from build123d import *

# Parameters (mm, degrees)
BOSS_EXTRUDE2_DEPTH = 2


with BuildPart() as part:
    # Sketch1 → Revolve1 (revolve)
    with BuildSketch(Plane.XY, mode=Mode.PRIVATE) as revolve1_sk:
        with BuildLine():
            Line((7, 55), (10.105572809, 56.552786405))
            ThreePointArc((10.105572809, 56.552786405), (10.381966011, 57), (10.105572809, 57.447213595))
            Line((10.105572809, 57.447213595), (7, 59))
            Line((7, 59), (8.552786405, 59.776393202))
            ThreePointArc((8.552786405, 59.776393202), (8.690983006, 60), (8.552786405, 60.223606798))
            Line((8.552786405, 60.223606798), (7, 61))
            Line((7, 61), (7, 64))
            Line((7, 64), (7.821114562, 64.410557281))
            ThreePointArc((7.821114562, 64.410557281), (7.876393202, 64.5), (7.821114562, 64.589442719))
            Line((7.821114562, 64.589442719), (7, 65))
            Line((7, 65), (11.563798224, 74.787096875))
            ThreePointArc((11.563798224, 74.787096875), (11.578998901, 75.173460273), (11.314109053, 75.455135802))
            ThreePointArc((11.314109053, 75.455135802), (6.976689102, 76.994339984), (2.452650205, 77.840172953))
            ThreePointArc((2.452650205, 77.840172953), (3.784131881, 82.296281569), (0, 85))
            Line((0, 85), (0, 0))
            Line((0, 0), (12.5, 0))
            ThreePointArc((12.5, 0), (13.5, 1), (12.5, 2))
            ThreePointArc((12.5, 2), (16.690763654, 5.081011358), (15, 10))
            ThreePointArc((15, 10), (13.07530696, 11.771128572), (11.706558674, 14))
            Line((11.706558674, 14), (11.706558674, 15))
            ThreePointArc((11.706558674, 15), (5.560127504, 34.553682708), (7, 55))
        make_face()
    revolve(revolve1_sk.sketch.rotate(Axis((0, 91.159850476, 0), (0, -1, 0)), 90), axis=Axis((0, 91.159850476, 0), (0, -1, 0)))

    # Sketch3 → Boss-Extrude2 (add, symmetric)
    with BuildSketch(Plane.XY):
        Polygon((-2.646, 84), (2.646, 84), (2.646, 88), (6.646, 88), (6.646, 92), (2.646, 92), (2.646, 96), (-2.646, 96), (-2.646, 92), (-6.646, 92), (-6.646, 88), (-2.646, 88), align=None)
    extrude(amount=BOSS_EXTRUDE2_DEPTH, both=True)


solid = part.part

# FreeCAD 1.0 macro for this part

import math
import FreeCAD as App
import Part
import Sketcher

V = App.Vector
Q = App.Units.Quantity


def add_polygon(sketch, points):
    """Adds a closed chain of lines whose ends are joined by coincident constraints."""
    first, n = sketch.GeometryCount, len(points)
    for a, b in zip(points, points[1:] + points[:1]):
        sketch.addGeometry(Part.LineSegment(App.Vector(*a, 0), App.Vector(*b, 0)), False)
    for i in range(n):
        sketch.addConstraint(Sketcher.Constraint("Coincident", first + i, 2, first + (i + 1) % n, 1))

doc = App.newDocument("Part")
params = doc.addObject("Spreadsheet::Sheet", "Params")
for row, (alias, value) in enumerate([
    ("sketch1_radius", "4 mm"),
    ("sketch1_radius2", "1 mm"),
    ("sketch1_radius3", "55 mm"),
    ("sketch1_radius4", "0.5 mm"),
    ("sketch1_radius5", "0.1 mm"),
    ("revolution_angle", "360 deg"),
    ("sketch2_width", "4 mm"),
    ("pad1_length", "4 mm"),
], start=1):
    params.set(f"A{row}", alias)
    params.set(f"B{row}", "=" + value)
    params.setAlias(f"B{row}", alias)

body = doc.addObject("PartDesign::Body", "Body")

sketch1 = doc.addObject("Sketcher::SketchObject", "Sketch")
body.addObject(sketch1)
sketch1.AttachmentSupport = (doc.XY_Plane, [""])
sketch1.MapMode = "FlatFace"
sketch1.addGeometry([
    Part.LineSegment(V(7, 55, 0), V(10.105573, 56.552786, 0)),
    Part.ArcOfCircle(Part.Circle(V(9.881966, 57, 0), V(0, 0, 1), 0.5), math.radians(-63.434949), math.radians(63.434949)),
    Part.LineSegment(V(10.105573, 57.447214, 0), V(7, 59, 0)),
    Part.LineSegment(V(7, 59, 0), V(8.552786, 59.776393, 0)),
    Part.ArcOfCircle(Part.Circle(V(8.440983, 60, 0), V(0, 0, 1), 0.25), math.radians(-63.434949), math.radians(63.434949)),
    Part.LineSegment(V(8.552786, 60.223607, 0), V(7, 61, 0)),
    Part.LineSegment(V(7, 61, 0), V(7, 64, 0)),
    Part.LineSegment(V(7, 64, 0), V(7.821115, 64.410557, 0)),
    Part.ArcOfCircle(Part.Circle(V(7.776393, 64.5, 0), V(0, 0, 1), 0.1), math.radians(-63.434949), math.radians(63.434949)),
    Part.LineSegment(V(7.821115, 64.589443, 0), V(7, 65, 0)),
    Part.LineSegment(V(7, 65, 0), V(11.563798, 74.787097, 0)),
    Part.ArcOfCircle(Part.Circle(V(11.110644, 74.998406, 0), V(0, 0, 1), 0.5), math.radians(-25), math.radians(65.987907)),
    Part.ArcOfCircle(Part.Circle(V(-0.69031, 48.508078, 0), V(0, 0, 1), 29.5), math.radians(65.987907), math.radians(83.884042)),
    Part.ArcOfCircle(Part.Circle(V(0, 81, 0), V(0, 0, 1), 4), math.radians(-52.181471), math.radians(90)),
    Part.LineSegment(V(0, 85, 0), V(0, 0, 0)),
    Part.LineSegment(V(0, 0, 0), V(12.5, 0, 0)),
    Part.ArcOfCircle(Part.Circle(V(12.5, 1, 0), V(0, 0, 1), 1), math.radians(-90), math.radians(90)),
    Part.ArcOfCircle(Part.Circle(V(12.5, 6.390625, 0), V(0, 0, 1), 4.390625), math.radians(-90), math.radians(55.291951)),
    Part.ArcOfCircle(Part.Circle(V(20.409253, 17.809609, 0), V(0, 0, 1), 9.5), math.radians(-156.358577), math.radians(-124.708049)),
    Part.LineSegment(V(11.706559, 14, 0), V(11.706559, 15, 0)),
    Part.ArcOfCircle(Part.Circle(V(60.183304, 40.980862, 0), V(0, 0, 1), 55), math.radians(165.232731), math.radians(208.188854)),
], False)
sketch1.addConstraint([
    Sketcher.Constraint("Tangent", 0, 2, 1, 1),
    Sketcher.Constraint("Tangent", 1, 2, 2, 1),
    Sketcher.Constraint("Coincident", 2, 2, 3, 1),
    Sketcher.Constraint("Tangent", 3, 2, 4, 1),
    Sketcher.Constraint("Tangent", 4, 2, 5, 1),
    Sketcher.Constraint("Coincident", 5, 2, 6, 1),
    Sketcher.Constraint("Coincident", 6, 2, 7, 1),
    Sketcher.Constraint("Tangent", 7, 2, 8, 1),
    Sketcher.Constraint("Tangent", 8, 2, 9, 1),
    Sketcher.Constraint("Coincident", 9, 2, 10, 1),
    Sketcher.Constraint("Tangent", 10, 2, 11, 1),
    Sketcher.Constraint("Tangent", 11, 2, 12, 1),
    Sketcher.Constraint("Coincident", 12, 2, 13, 1),
    Sketcher.Constraint("Coincident", 13, 2, 14, 1),
    Sketcher.Constraint("Coincident", 14, 2, 15, 1),
    Sketcher.Constraint("Tangent", 15, 2, 16, 1),
    Sketcher.Constraint("Tangent", 16, 2, 17, 1),
    Sketcher.Constraint("Tangent", 17, 2, 18, 2),
    Sketcher.Constraint("Coincident", 18, 1, 19, 1),
    Sketcher.Constraint("Coincident", 19, 2, 20, 2),
    Sketcher.Constraint("Coincident", 20, 1, 0, 1),
    Sketcher.Constraint("Vertical", 6),
    Sketcher.Constraint("Vertical", 14),
    Sketcher.Constraint("Horizontal", 15),
    Sketcher.Constraint("Vertical", 19),
    Sketcher.Constraint("Coincident", 14, 2, -1, 1),
    Sketcher.Constraint("Equal", 1, 11),
    Sketcher.Constraint("PointOnObject", 13, 3, -2),
    Sketcher.Constraint("Parallel", 0, 3),
    Sketcher.Constraint("Parallel", 2, 5),
    Sketcher.Constraint("Parallel", 3, 7),
    Sketcher.Constraint("Parallel", 5, 9),
    Sketcher.Constraint("Vertical", 16, 3, 17, 3),
    Sketcher.Constraint("Vertical", 0, 2, 1, 2),
    Sketcher.Constraint("Vertical", 2, 2, 5, 2),
    Sketcher.Constraint("Vertical", 6, 2, 9, 2),
    Sketcher.Constraint("Vertical", 9, 2, 20, 1),
    Sketcher.Constraint("Radius", 13, Q("4 mm")),
    Sketcher.Constraint("Radius", 16, Q("1 mm")),
    Sketcher.Constraint("Radius", 20, Q("55 mm")),
    Sketcher.Constraint("Radius", 1, Q("0.5 mm")),
    Sketcher.Constraint("Radius", 8, Q("0.1 mm")),
    Sketcher.Constraint("Radius", 12, Q("29.5 mm")),
    Sketcher.Constraint("Radius", 18, Q("9.5 mm")),
    Sketcher.Constraint("DistanceY", 6, 1, 6, 2, Q("3 mm")),
    Sketcher.Constraint("DistanceY", 14, 2, 14, 1, Q("85 mm")),
    Sketcher.Constraint("DistanceY", 19, 1, 19, 2, Q("1 mm")),
    Sketcher.Constraint("Angle", 10, Q("65 deg")),
    Sketcher.Constraint("Radius", 4, Q("0.25 mm")),
    Sketcher.Constraint("DistanceX", 15, 1, 15, 2, Q("12.5 mm")),
    Sketcher.Constraint("DistanceY", -1, 1, 1, 3, Q("57 mm")),
    Sketcher.Constraint("DistanceY", -1, 1, 4, 3, Q("60 mm")),
    Sketcher.Constraint("DistanceX", -1, 1, 2, 2, Q("7 mm")),
    Sketcher.Constraint("DistanceY", -1, 1, 2, 2, Q("59 mm")),
    Sketcher.Constraint("DistanceY", -1, 1, 9, 2, Q("65 mm")),
    Sketcher.Constraint("DistanceX", -1, 1, 17, 2, Q("15 mm")),
    Sketcher.Constraint("DistanceY", -1, 1, 17, 2, Q("10 mm")),
    Sketcher.Constraint("DistanceY", -1, 1, 18, 1, Q("14 mm")),
    Sketcher.Constraint("DistanceX", -1, 1, 10, 2, Q("11.563798 mm")),
    Sketcher.Constraint("DistanceX", 12, 3, -1, 1, Q("0.69031 mm")),
    Sketcher.Constraint("DistanceX", 8, 3, 4, 3, Q("0.66459 mm")),
])
sketch1.setExpression("Constraints[37]", "Params.sketch1_radius")
sketch1.setExpression("Constraints[38]", "Params.sketch1_radius2")
sketch1.setExpression("Constraints[39]", "Params.sketch1_radius3")
sketch1.setExpression("Constraints[40]", "Params.sketch1_radius4")
sketch1.setExpression("Constraints[41]", "Params.sketch1_radius5")
revolution = doc.addObject("PartDesign::Revolution", "Revolution")
body.addObject(revolution)
revolution.Profile = sketch1
revolution.ReferenceAxis = (sketch1, ["V_Axis"])
revolution.setExpression("Angle", "Params.revolution_angle")

sketch2 = doc.addObject("Sketcher::SketchObject", "Sketch001")
body.addObject(sketch2)
sketch2.AttachmentSupport = (doc.XY_Plane, [""])
sketch2.MapMode = "FlatFace"
add_polygon(sketch2, [(-2.646, 84), (2.646, 84), (2.646, 88), (6.646, 88), (6.646, 92), (2.646, 92), (2.646, 96), (-2.646, 96), (-2.646, 92), (-6.646, 92), (-6.646, 88), (-2.646, 88)])
sketch2.addConstraint([
    Sketcher.Constraint("Horizontal", 0),
    Sketcher.Constraint("Vertical", 1),
    Sketcher.Constraint("Horizontal", 2),
    Sketcher.Constraint("Vertical", 3),
    Sketcher.Constraint("Horizontal", 4),
    Sketcher.Constraint("Vertical", 5),
    Sketcher.Constraint("Horizontal", 6),
    Sketcher.Constraint("Vertical", 7),
    Sketcher.Constraint("Horizontal", 8),
    Sketcher.Constraint("Vertical", 9),
    Sketcher.Constraint("Horizontal", 10),
    Sketcher.Constraint("Vertical", 11),
    Sketcher.Constraint("Symmetric", 4, 2, 7, 2, -2),
    Sketcher.Constraint("Symmetric", 2, 2, 9, 2, -2),
    Sketcher.Constraint("Vertical", 1, 2, 4, 2),
    Sketcher.Constraint("Vertical", 7, 2, 10, 2),
    Sketcher.Constraint("Equal", 10, 1),
    Sketcher.Constraint("Equal", 1, 3),
    Sketcher.Constraint("Equal", 3, 5),
    Sketcher.Constraint("DistanceX", 2, 1, 2, 2, Q("4 mm")),
    Sketcher.Constraint("DistanceY", -1, 1, 0, 2, Q("84 mm")),
    Sketcher.Constraint("DistanceX", 0, 1, 0, 2, Q("5.292 mm")),
])
sketch2.setExpression("Constraints[31]", "Params.sketch2_width")
pad1 = doc.addObject("PartDesign::Pad", "Pad")
body.addObject(pad1)
pad1.Profile = sketch2
pad1.setExpression("Length", "Params.pad1_length")
pad1.Midplane = True

doc.recompute()
